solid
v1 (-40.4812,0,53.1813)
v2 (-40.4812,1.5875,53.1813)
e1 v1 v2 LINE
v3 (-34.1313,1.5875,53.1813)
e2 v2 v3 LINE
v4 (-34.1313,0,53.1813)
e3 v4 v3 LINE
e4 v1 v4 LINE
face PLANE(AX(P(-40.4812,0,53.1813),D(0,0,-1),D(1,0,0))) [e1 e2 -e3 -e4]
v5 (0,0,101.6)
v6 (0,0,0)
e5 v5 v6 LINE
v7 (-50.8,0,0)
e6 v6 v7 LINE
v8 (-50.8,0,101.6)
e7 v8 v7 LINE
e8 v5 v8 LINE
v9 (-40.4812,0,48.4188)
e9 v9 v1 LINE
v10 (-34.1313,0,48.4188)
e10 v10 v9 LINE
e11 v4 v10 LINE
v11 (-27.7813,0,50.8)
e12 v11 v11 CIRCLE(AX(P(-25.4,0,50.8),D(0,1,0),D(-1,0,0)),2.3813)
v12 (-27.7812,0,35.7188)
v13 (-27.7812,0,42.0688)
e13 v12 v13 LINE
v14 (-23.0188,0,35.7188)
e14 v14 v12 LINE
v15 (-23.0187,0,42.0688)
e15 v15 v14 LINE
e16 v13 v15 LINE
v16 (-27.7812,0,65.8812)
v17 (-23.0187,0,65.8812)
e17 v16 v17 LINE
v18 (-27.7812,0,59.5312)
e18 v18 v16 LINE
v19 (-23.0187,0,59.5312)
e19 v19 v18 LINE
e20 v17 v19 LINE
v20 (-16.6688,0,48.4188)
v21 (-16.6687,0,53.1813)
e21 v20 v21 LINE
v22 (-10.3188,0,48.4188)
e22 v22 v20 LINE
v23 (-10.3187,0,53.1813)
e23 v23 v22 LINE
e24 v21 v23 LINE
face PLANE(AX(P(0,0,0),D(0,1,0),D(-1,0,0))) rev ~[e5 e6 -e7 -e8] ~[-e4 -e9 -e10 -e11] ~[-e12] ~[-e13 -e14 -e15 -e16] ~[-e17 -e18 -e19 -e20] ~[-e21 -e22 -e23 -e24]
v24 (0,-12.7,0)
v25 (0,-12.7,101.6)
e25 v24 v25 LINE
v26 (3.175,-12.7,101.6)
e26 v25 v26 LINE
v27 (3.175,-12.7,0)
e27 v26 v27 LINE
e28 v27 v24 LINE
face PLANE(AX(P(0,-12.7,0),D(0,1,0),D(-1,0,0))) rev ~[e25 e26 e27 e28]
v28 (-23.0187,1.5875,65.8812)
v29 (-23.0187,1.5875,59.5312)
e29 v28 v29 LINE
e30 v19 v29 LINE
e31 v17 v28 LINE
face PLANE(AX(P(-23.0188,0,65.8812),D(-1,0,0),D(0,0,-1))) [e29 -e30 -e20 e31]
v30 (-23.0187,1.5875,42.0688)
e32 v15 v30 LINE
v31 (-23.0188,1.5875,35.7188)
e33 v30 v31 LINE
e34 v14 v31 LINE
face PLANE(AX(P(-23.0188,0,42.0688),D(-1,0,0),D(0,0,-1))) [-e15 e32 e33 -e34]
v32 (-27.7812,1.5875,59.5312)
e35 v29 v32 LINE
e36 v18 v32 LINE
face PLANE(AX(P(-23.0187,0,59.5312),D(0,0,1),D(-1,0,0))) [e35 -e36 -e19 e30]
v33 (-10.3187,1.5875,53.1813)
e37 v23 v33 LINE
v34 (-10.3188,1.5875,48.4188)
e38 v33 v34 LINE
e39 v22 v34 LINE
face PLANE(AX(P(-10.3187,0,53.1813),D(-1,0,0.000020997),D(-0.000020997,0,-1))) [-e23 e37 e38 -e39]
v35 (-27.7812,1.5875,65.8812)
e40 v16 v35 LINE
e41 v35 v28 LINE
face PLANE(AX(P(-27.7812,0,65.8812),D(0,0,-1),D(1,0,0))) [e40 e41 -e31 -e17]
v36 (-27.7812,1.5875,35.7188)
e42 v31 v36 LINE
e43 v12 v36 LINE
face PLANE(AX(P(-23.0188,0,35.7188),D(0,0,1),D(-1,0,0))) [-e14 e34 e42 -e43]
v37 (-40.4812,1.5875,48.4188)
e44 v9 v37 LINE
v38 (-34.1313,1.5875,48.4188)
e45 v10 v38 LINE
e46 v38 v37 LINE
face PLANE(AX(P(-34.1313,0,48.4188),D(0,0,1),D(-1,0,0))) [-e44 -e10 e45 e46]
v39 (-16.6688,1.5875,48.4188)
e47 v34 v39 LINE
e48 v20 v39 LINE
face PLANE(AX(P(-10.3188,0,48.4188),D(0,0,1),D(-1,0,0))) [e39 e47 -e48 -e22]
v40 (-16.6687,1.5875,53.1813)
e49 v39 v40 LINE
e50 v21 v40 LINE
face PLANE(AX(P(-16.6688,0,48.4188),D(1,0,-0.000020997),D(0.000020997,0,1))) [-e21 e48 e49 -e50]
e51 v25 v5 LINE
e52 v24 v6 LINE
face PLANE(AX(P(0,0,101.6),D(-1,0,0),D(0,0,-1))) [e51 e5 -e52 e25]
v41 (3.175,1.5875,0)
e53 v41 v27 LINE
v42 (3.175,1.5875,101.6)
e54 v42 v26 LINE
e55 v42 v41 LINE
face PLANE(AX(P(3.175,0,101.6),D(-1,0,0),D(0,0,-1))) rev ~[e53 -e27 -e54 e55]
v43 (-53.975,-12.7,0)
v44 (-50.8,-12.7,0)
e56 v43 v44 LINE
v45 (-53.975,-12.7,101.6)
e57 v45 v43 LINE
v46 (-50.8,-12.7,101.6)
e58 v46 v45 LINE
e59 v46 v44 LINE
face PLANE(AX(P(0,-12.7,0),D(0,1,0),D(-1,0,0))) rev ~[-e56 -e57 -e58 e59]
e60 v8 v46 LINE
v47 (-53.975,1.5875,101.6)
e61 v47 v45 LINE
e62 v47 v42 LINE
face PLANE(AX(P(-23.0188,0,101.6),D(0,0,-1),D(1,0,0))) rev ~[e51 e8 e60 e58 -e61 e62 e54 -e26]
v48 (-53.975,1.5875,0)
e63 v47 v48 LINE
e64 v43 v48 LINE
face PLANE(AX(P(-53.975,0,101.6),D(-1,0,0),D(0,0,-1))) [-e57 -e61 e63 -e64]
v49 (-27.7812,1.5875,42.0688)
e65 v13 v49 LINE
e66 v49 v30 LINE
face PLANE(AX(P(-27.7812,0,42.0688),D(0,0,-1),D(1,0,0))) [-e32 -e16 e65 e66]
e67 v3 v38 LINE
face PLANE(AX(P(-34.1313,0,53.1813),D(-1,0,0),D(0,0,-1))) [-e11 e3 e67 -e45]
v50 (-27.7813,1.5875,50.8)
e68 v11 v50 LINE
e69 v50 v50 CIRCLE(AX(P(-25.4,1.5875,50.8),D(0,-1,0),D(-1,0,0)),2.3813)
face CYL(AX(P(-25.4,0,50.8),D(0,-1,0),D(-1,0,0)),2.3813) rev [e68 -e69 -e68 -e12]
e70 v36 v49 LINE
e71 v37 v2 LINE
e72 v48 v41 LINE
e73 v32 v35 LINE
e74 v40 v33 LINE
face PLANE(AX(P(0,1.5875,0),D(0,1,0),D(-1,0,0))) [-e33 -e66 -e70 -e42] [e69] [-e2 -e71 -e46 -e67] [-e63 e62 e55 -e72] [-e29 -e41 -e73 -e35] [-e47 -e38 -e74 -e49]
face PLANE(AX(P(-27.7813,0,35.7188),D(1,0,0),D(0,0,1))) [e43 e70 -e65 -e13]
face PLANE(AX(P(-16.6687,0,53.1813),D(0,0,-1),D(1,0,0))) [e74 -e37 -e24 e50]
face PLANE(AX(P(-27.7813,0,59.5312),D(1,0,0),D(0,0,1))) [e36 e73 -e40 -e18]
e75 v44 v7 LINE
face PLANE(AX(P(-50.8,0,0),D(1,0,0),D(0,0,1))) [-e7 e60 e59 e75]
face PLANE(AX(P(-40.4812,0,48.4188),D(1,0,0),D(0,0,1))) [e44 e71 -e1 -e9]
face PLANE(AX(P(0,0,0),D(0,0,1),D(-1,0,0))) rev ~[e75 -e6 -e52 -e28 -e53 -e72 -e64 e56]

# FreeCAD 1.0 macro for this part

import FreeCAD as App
import Part
import Sketcher
from FreeCAD import Vector
Q = App.Units.Quantity

doc = App.newDocument("Part")
params = doc.addObject("Spreadsheet::Sheet", "Params")
for row, (alias, value) in enumerate([
    ("sketch1_width", "2 in"),
    ("sketch1_height", "4 in"),
    ("sketch1_diameter", "0.1875 in"),
    ("sketch1_width2", "0.25 in"),
    ("sketch1_width3", "0.1875 in"),
    ("pad1_length", "0.0625 in"),
    ("sketch2_height", "4 in"),
    ("sketch2_width", "0.125 in"),
    ("pad2_length", "0.0625 in"),
    ("pad2_length2", "0.5 in"),
], start=1):
    params.set(f"A{row}", alias)
    params.set(f"B{row}", "=" + value)
    params.setAlias(f"B{row}", alias)

body = doc.addObject("PartDesign::Body", "Body")

# Sketch on XZ plane
sketch1 = body.newObject("Sketcher::SketchObject", "Sketch")
sketch1.AttachmentSupport = (doc.getObject("XZ_Plane"), [""])
sketch1.MapMode = "FlatFace"
sketch1.addGeometry([
    Part.LineSegment(Vector(0, 0, 0), Vector(-50.8, 0, 0)),  # 0
    Part.LineSegment(Vector(-50.8, 0, 0), Vector(-50.8, 101.6, 0)),  # 1
    Part.LineSegment(Vector(-50.8, 101.6, 0), Vector(0, 101.6, 0)),  # 2
    Part.LineSegment(Vector(0, 101.6, 0), Vector(0, 0, 0)),  # 3
    Part.LineSegment(Vector(-16.6688, 48.4188, 0), Vector(-10.3188, 48.4188, 0)),  # 4
    Part.LineSegment(Vector(-10.3188, 48.4188, 0), Vector(-10.3187, 53.1813, 0)),  # 5
    Part.LineSegment(Vector(-10.3187, 53.1813, 0), Vector(-16.6687, 53.1813, 0)),  # 6
    Part.LineSegment(Vector(-16.6687, 53.1813, 0), Vector(-16.6688, 48.4188, 0)),  # 7
    Part.LineSegment(Vector(-23.0188, 35.7188, 0), Vector(-23.0188, 42.0688, 0)),  # 8
    Part.LineSegment(Vector(-23.0187, 42.0688, 0), Vector(-27.7812, 42.0688, 0)),  # 9
    Part.LineSegment(Vector(-27.7813, 42.0688, 0), Vector(-27.7813, 35.7188, 0)),  # 10
    Part.LineSegment(Vector(-27.7812, 35.7188, 0), Vector(-23.0188, 35.7188, 0)),  # 11
    Part.LineSegment(Vector(-23.0188, 59.5312, 0), Vector(-23.0188, 65.8812, 0)),  # 12
    Part.LineSegment(Vector(-23.0187, 65.8812, 0), Vector(-27.7812, 65.8812, 0)),  # 13
    Part.LineSegment(Vector(-27.7813, 65.8812, 0), Vector(-27.7813, 59.5312, 0)),  # 14
    Part.LineSegment(Vector(-27.7812, 59.5312, 0), Vector(-23.0187, 59.5312, 0)),  # 15
    Part.Circle(Vector(-25.4, 50.8, 0), Vector(0, 0, 1), 2.3813),  # 16
    Part.LineSegment(Vector(-40.4812, 48.4188, 0), Vector(-34.1313, 48.4188, 0)),  # 17
    Part.LineSegment(Vector(-34.1313, 48.4188, 0), Vector(-34.1313, 53.1813, 0)),  # 18
    Part.LineSegment(Vector(-34.1313, 53.1813, 0), Vector(-40.4812, 53.1813, 0)),  # 19
    Part.LineSegment(Vector(-40.4812, 53.1813, 0), Vector(-40.4812, 48.4188, 0)),  # 20
], False)
sketch1.addConstraint([
    Sketcher.Constraint("Coincident", 0, 2, 1, 1),
    Sketcher.Constraint("Coincident", 1, 2, 2, 1),
    Sketcher.Constraint("Coincident", 2, 2, 3, 1),
    Sketcher.Constraint("Coincident", 3, 2, 0, 1),
    Sketcher.Constraint("Coincident", 4, 2, 5, 1),
    Sketcher.Constraint("Coincident", 5, 2, 6, 1),
    Sketcher.Constraint("Coincident", 6, 2, 7, 1),
    Sketcher.Constraint("Coincident", 7, 2, 4, 1),
    Sketcher.Constraint("Coincident", 8, 2, 9, 1),
    Sketcher.Constraint("Coincident", 9, 2, 10, 1),
    Sketcher.Constraint("Coincident", 10, 2, 11, 1),
    Sketcher.Constraint("Coincident", 11, 2, 8, 1),
    Sketcher.Constraint("Coincident", 12, 2, 13, 1),
    Sketcher.Constraint("Coincident", 13, 2, 14, 1),
    Sketcher.Constraint("Coincident", 14, 2, 15, 1),
    Sketcher.Constraint("Coincident", 15, 2, 12, 1),
    Sketcher.Constraint("Coincident", 17, 2, 18, 1),
    Sketcher.Constraint("Coincident", 18, 2, 19, 1),
    Sketcher.Constraint("Coincident", 19, 2, 20, 1),
    Sketcher.Constraint("Coincident", 20, 2, 17, 1),
    Sketcher.Constraint("Horizontal", 0),
    Sketcher.Constraint("Vertical", 1),
    Sketcher.Constraint("Horizontal", 2),
    Sketcher.Constraint("Vertical", 3),
    Sketcher.Constraint("Horizontal", 4),
    Sketcher.Constraint("Vertical", 5),
    Sketcher.Constraint("Horizontal", 6),
    Sketcher.Constraint("Vertical", 7),
    Sketcher.Constraint("Vertical", 8),
    Sketcher.Constraint("Horizontal", 9),
    Sketcher.Constraint("Vertical", 10),
    Sketcher.Constraint("Horizontal", 11),
    Sketcher.Constraint("Vertical", 12),
    Sketcher.Constraint("Horizontal", 13),
    Sketcher.Constraint("Vertical", 14),
    Sketcher.Constraint("Horizontal", 15),
    Sketcher.Constraint("Horizontal", 17),
    Sketcher.Constraint("Vertical", 18),
    Sketcher.Constraint("Horizontal", 19),
    Sketcher.Constraint("Vertical", 20),
    Sketcher.Constraint("Coincident", 3, 2, -1, 1),
    Sketcher.Constraint("Horizontal", 7, 2, 17, 2),
    Sketcher.Constraint("Horizontal", 6, 2, 18, 2),
    Sketcher.Constraint("Vertical", 11, 2, 12, 2),
    Sketcher.Constraint("Vertical", 10, 2, 13, 2),
    Sketcher.Constraint("Equal", 6, 17),
    Sketcher.Constraint("Equal", 15, 5),
    Sketcher.Constraint("Equal", 19, 8),
    Sketcher.Constraint("Equal", 10, 12),
    Sketcher.Constraint("DistanceX", 0, 2, 0, 1, Q("2 in")),
    Sketcher.Constraint("DistanceY", 1, 1, 1, 2, Q("4 in")),
    Sketcher.Constraint("Diameter", 16, Q("0.1875 in")),
    Sketcher.Constraint("DistanceX", 16, 3, -1, 1, Q("1 in")),
    Sketcher.Constraint("DistanceY", -1, 1, 16, 3, Q("2 in")),
    Sketcher.Constraint("DistanceX", 4, 1, 4, 2, Q("0.25 in")),
    Sketcher.Constraint("DistanceX", 9, 2, 9, 1, Q("0.1875 in")),
    Sketcher.Constraint("DistanceX", 8, 2, 7, 2, Q("0.25 in")),
    Sketcher.Constraint("DistanceY", 8, 2, 7, 2, Q("0.25 in")),
    Sketcher.Constraint("DistanceY", 6, 2, 14, 2, Q("0.25 in")),
    Sketcher.Constraint("DistanceX", 17, 2, 9, 2, Q("0.25 in")),
    Sketcher.Constraint("DistanceY", 4, 2, 16, 3, Q("0.093748 in")),
    Sketcher.Constraint("DistanceX", 16, 3, 8, 2, Q("0.093748 in")),
])
sketch1.setExpression("Constraints[49]", "Params.sketch1_width")
sketch1.setExpression("Constraints[50]", "Params.sketch1_height")
sketch1.setExpression("Constraints[51]", "Params.sketch1_diameter")
sketch1.setExpression("Constraints[54]", "Params.sketch1_width2")
sketch1.setExpression("Constraints[55]", "Params.sketch1_width3")
pad1 = body.newObject("PartDesign::Pad", "Pad")
pad1.Profile = sketch1
pad1.setExpression("Length", "Params.pad1_length")
pad1.Reversed = True

# Sketch on XZ plane
sketch2 = body.newObject("Sketcher::SketchObject", "Sketch001")
sketch2.AttachmentSupport = (doc.getObject("XZ_Plane"), [""])
sketch2.MapMode = "FlatFace"
sketch2.addGeometry([
    Part.LineSegment(Vector(3.175, 0, 0), Vector(0, 0, 0)),  # 0
    Part.LineSegment(Vector(0, 0, 0), Vector(0, 101.6, 0)),  # 1
    Part.LineSegment(Vector(0, 101.6, 0), Vector(3.175, 101.6, 0)),  # 2
    Part.LineSegment(Vector(3.175, 101.6, 0), Vector(3.175, 0, 0)),  # 3
    Part.LineSegment(Vector(-50.8, 101.6, 0), Vector(-50.8, 0, 0)),  # 4
    Part.LineSegment(Vector(-50.8, 0, 0), Vector(-53.975, 0, 0)),  # 5
    Part.LineSegment(Vector(-53.975, 0, 0), Vector(-53.975, 101.6, 0)),  # 6
    Part.LineSegment(Vector(-53.975, 101.6, 0), Vector(-50.8, 101.6, 0)),  # 7
], False)
sketch2.addConstraint([
    Sketcher.Constraint("Coincident", 0, 2, 1, 1),
    Sketcher.Constraint("Coincident", 1, 2, 2, 1),
    Sketcher.Constraint("Coincident", 2, 2, 3, 1),
    Sketcher.Constraint("Coincident", 3, 2, 0, 1),
    Sketcher.Constraint("Coincident", 4, 2, 5, 1),
    Sketcher.Constraint("Coincident", 5, 2, 6, 1),
    Sketcher.Constraint("Coincident", 6, 2, 7, 1),
    Sketcher.Constraint("Coincident", 7, 2, 4, 1),
    Sketcher.Constraint("Horizontal", 0),
    Sketcher.Constraint("Vertical", 1),
    Sketcher.Constraint("Horizontal", 2),
    Sketcher.Constraint("Vertical", 3),
    Sketcher.Constraint("Vertical", 4),
    Sketcher.Constraint("Horizontal", 5),
    Sketcher.Constraint("Vertical", 6),
    Sketcher.Constraint("Horizontal", 7),
    Sketcher.Constraint("Coincident", 0, 2, -1, 1),
    Sketcher.Constraint("PointOnObject", 4, 2, -1),
    Sketcher.Constraint("Horizontal", 2, 2, 6, 2),
    Sketcher.Constraint("Equal", 2, 5),
    Sketcher.Constraint("DistanceY", 1, 1, 1, 2, Q("4 in")),
    Sketcher.Constraint("DistanceX", 4, 2, -1, 1, Q("2 in")),
    Sketcher.Constraint("DistanceX", 0, 2, 0, 1, Q("0.125 in")),
])
sketch2.setExpression("Constraints[20]", "Params.sketch2_height")
sketch2.setExpression("Constraints[22]", "Params.sketch2_width")
pad2 = body.newObject("PartDesign::Pad", "Pad001")
pad2.Profile = sketch2
pad2.Type = "TwoLengths"
pad2.setExpression("Length", "Params.pad2_length")
pad2.setExpression("Length2", "Params.pad2_length2")
pad2.Reversed = True

doc.recompute()
